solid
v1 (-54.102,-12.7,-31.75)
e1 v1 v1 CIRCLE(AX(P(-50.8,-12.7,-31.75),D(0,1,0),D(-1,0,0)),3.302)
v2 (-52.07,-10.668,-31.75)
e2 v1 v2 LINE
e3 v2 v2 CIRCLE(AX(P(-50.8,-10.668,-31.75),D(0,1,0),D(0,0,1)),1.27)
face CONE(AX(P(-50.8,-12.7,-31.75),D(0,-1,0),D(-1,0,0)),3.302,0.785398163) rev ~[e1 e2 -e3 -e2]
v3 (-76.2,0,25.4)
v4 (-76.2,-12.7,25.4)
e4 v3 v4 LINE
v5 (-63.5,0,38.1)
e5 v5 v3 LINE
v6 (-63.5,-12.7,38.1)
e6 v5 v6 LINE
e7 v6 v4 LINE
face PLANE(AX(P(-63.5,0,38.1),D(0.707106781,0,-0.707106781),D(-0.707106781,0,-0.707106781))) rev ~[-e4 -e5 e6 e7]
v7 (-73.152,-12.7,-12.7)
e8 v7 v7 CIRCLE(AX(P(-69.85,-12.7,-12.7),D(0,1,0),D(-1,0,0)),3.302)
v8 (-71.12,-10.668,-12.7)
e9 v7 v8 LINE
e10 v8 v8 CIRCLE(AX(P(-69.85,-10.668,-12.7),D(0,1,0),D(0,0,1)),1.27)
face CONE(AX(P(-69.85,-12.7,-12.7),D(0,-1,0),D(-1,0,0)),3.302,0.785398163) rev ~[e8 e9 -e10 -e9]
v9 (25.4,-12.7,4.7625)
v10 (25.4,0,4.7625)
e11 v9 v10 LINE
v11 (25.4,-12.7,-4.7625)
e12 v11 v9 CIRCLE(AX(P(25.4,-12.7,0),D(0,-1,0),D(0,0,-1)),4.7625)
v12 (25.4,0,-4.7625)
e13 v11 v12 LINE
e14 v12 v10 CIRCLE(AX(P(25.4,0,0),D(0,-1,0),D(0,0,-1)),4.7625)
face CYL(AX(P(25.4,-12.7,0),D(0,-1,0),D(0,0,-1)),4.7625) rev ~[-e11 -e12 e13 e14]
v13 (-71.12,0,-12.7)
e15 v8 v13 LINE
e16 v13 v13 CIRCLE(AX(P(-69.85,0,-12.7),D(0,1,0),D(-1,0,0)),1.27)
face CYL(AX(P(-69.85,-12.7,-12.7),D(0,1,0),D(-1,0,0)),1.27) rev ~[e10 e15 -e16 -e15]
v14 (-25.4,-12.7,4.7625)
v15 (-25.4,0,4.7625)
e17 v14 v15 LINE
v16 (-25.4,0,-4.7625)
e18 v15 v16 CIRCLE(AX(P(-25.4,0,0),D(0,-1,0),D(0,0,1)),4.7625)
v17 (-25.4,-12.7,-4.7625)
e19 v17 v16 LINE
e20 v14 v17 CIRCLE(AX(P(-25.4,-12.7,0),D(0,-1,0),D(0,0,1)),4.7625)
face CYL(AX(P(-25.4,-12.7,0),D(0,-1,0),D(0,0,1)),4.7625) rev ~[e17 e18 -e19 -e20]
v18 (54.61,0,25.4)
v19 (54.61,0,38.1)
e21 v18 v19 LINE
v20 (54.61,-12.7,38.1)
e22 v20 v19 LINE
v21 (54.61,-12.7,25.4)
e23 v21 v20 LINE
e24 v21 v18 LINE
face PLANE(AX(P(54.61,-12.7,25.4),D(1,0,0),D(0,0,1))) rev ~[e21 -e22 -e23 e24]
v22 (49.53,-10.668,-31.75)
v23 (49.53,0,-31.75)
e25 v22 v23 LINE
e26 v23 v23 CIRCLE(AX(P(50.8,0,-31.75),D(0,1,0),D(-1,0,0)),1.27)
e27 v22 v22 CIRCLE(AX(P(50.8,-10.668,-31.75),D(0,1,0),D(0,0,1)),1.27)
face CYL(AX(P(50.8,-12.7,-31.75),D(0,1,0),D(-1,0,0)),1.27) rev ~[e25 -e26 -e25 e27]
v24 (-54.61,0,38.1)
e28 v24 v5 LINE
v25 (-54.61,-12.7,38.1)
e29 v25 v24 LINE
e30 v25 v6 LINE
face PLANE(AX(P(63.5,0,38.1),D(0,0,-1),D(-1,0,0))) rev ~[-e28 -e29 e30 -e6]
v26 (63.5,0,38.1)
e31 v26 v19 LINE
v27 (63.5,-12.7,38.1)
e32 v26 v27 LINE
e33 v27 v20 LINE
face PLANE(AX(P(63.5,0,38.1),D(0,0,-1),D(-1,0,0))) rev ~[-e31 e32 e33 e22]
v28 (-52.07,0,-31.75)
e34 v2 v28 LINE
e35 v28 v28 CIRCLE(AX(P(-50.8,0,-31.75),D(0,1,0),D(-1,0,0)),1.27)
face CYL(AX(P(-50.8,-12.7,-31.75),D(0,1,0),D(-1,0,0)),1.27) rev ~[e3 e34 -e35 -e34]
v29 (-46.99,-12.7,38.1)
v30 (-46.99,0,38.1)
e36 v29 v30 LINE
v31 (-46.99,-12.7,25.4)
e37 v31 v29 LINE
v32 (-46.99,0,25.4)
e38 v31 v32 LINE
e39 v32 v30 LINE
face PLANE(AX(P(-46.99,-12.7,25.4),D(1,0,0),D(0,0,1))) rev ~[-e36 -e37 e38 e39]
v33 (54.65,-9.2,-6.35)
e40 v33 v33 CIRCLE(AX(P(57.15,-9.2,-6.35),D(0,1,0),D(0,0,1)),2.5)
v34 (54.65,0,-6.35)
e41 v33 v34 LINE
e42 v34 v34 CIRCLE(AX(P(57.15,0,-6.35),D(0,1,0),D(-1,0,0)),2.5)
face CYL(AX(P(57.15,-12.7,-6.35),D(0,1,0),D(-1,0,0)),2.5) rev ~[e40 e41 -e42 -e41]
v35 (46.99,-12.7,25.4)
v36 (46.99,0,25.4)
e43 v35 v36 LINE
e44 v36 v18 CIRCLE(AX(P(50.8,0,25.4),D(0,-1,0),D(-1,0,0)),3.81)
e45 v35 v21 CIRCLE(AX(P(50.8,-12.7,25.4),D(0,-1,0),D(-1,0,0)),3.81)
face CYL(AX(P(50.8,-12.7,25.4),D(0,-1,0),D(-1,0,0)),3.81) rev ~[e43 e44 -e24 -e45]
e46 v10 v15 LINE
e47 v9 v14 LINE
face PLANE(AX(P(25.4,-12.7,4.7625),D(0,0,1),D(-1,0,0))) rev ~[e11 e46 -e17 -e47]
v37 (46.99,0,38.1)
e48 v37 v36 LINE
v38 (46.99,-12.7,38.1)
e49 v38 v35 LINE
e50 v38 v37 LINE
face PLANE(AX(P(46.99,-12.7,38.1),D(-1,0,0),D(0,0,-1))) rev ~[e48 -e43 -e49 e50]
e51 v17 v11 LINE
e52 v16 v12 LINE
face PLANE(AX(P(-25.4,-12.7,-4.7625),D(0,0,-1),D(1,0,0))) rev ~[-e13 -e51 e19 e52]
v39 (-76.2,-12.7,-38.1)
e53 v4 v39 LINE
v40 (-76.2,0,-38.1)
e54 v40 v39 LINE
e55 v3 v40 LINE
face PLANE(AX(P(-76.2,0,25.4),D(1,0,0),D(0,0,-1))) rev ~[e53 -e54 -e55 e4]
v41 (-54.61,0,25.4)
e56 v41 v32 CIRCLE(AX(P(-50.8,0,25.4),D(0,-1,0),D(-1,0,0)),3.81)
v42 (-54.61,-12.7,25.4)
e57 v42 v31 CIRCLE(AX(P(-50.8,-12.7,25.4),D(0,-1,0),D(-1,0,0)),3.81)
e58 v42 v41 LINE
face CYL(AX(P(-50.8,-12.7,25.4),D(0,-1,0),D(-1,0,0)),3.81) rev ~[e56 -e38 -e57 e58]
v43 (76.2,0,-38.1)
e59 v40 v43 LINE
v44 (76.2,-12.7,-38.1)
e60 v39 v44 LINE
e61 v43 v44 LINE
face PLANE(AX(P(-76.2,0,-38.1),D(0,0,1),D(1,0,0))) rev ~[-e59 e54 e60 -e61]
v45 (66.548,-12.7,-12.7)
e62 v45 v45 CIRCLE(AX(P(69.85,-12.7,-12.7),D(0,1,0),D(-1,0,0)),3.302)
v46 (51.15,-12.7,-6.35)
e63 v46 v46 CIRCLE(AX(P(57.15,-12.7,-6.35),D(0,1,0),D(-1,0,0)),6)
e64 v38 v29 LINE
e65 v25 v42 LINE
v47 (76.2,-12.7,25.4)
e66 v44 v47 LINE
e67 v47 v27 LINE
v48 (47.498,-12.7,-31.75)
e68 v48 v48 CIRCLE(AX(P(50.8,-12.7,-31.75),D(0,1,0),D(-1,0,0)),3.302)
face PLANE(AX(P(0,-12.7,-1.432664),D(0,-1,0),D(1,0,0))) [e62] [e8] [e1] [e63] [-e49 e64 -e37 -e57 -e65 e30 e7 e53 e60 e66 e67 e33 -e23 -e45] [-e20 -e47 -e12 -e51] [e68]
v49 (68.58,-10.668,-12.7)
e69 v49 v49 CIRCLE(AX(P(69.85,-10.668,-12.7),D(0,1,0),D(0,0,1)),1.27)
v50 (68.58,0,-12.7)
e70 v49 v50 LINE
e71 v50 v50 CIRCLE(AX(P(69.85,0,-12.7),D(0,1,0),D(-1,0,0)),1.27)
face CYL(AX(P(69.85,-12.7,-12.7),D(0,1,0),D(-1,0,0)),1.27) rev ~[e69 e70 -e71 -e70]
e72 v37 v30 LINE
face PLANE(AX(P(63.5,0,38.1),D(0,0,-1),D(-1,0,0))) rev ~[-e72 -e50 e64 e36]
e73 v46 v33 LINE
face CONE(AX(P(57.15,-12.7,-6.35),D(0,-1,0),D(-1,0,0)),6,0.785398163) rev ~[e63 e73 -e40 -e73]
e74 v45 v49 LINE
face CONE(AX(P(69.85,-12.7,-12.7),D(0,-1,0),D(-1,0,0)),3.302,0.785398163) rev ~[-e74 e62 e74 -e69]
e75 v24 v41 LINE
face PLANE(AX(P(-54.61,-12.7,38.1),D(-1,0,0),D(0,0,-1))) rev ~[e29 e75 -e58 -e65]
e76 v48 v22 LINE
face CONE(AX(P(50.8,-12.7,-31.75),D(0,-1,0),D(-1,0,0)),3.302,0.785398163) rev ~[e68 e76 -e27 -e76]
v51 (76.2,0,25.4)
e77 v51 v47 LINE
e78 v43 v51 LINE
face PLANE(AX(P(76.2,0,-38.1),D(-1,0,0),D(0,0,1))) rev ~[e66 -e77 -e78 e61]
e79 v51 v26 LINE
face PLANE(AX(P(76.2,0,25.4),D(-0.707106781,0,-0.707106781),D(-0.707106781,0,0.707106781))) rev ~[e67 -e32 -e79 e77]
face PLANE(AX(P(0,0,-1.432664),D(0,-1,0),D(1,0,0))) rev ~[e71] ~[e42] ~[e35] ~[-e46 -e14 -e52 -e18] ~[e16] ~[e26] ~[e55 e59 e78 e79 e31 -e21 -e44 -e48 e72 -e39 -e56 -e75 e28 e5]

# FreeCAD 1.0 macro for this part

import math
import FreeCAD as App
import Part
import Sketcher
from FreeCAD import Vector
Q = App.Units.Quantity


def add_polygon(sketch, points):
    """Adds a closed chain of lines whose ends are joined by coincident constraints."""
    first, n = sketch.GeometryCount, len(points)
    for a, b in zip(points, points[1:] + points[:1]):
        sketch.addGeometry(Part.LineSegment(App.Vector(*a, 0), App.Vector(*b, 0)), False)
    for i in range(n):
        sketch.addConstraint(Sketcher.Constraint("Coincident", first + i, 2, first + (i + 1) % n, 1))

doc = App.newDocument("Part")
body = doc.addObject("PartDesign::Body", "Body")

# Sketch on XZ plane
sketch1 = doc.addObject("Sketcher::SketchObject", "Sketch")
body.addObject(sketch1)
sketch1.AttachmentSupport = (doc.XZ_Plane, [""])
sketch1.MapMode = "FlatFace"
add_polygon(sketch1, [(63.5, 38.1), (-63.5, 38.1), (-76.2, 25.4), (-76.2, -38.1), (76.2, -38.1), (76.2, 25.4)])  # lines 0-5
sketch1.addConstraint([
    Sketcher.Constraint("Horizontal", 0),
    Sketcher.Constraint("Vertical", 2),
    Sketcher.Constraint("Horizontal", 3),
    Sketcher.Constraint("Vertical", 4),
    Sketcher.Constraint("Symmetric", 1, 2, 4, 2, -2),
    Sketcher.Constraint("Perpendicular", 1, 5),
    Sketcher.Constraint("Equal", 1, 5),
    Sketcher.Constraint("DistanceX", 0, 2, 0, 1, Q("5 in")),
    Sketcher.Constraint("DistanceX", 3, 1, 3, 2, Q("6 in")),
    Sketcher.Constraint("DistanceY", 2, 2, 2, 1, Q("2.5 in")),
    Sketcher.Constraint("DistanceY", -1, 1, 1, 2, Q("1 in")),
])
pad1 = doc.addObject("PartDesign::Pad", "Pad")
body.addObject(pad1)
pad1.Profile = sketch1
pad1.Length = Q("0.5 in")

# Sketch on XZ plane
sketch2 = doc.addObject("Sketcher::SketchObject", "Sketch001")
body.addObject(sketch2)
sketch2.AttachmentSupport = (doc.XZ_Plane, [""])
sketch2.MapMode = "FlatFace"
sketch2.AttachmentOffset = App.Placement(Vector(0, 0, 0.5 * 25.4), App.Rotation())
sketch2.addGeometry([
    Part.LineSegment(Vector(-46.99, 38.1, 0), Vector(-54.61, 38.1, 0)),  # 0
    Part.LineSegment(Vector(-54.61, 38.1, 0), Vector(-54.61, 25.4, 0)),  # 1
    Part.ArcOfCircle(Part.Circle(Vector(-50.8, 25.4, 0), Vector(0, 0, 1), 3.81), math.radians(180), math.radians(360)),  # 2
    Part.LineSegment(Vector(-46.99, 25.4, 0), Vector(-46.99, 38.1, 0)),  # 3
    Part.LineSegment(Vector(25.4, 4.7625, 0), Vector(-25.4, 4.7625, 0)),  # 4
    Part.ArcOfCircle(Part.Circle(Vector(-25.4, 0, 0), Vector(0, 0, 1), 4.7625), math.radians(90), math.radians(270)),  # 5
    Part.LineSegment(Vector(-25.4, -4.7625, 0), Vector(25.4, -4.7625, 0)),  # 6
    Part.ArcOfCircle(Part.Circle(Vector(25.4, 0, 0), Vector(0, 0, 1), 4.7625), math.radians(-90), math.radians(90)),  # 7
    Part.LineSegment(Vector(54.61, 38.1, 0), Vector(46.99, 38.1, 0)),  # 8
    Part.LineSegment(Vector(46.99, 38.1, 0), Vector(46.99, 25.4, 0)),  # 9
    Part.ArcOfCircle(Part.Circle(Vector(50.8, 25.4, 0), Vector(0, 0, 1), 3.81), math.radians(180), math.radians(360)),  # 10
    Part.LineSegment(Vector(54.61, 25.4, 0), Vector(54.61, 38.1, 0)),  # 11
], False)
sketch2.addConstraint([
    Sketcher.Constraint("Coincident", 0, 2, 1, 1),
    Sketcher.Constraint("Tangent", 1, 2, 2, 1),
    Sketcher.Constraint("Tangent", 2, 2, 3, 1),
    Sketcher.Constraint("Coincident", 3, 2, 0, 1),
    Sketcher.Constraint("Tangent", 4, 2, 5, 1),
    Sketcher.Constraint("Tangent", 5, 2, 6, 1),
    Sketcher.Constraint("Tangent", 6, 2, 7, 1),
    Sketcher.Constraint("Tangent", 7, 2, 4, 1),
    Sketcher.Constraint("Coincident", 8, 2, 9, 1),
    Sketcher.Constraint("Tangent", 9, 2, 10, 1),
    Sketcher.Constraint("Tangent", 10, 2, 11, 1),
    Sketcher.Constraint("Coincident", 11, 2, 8, 1),
    Sketcher.Constraint("Horizontal", 0),
    Sketcher.Constraint("Vertical", 1),
    Sketcher.Constraint("Vertical", 3),
    Sketcher.Constraint("Horizontal", 4),
    Sketcher.Constraint("Horizontal", 6),
    Sketcher.Constraint("Horizontal", 8),
    Sketcher.Constraint("Vertical", 9),
    Sketcher.Constraint("Vertical", 11),
    Sketcher.Constraint("Equal", 2, 10),
    Sketcher.Constraint("Symmetric", 5, 3, 7, 3, -1, 1),
    Sketcher.Constraint("Symmetric", 2, 3, 10, 3, -2),
    Sketcher.Constraint("Horizontal", 3, 2, 8, 2),
    Sketcher.Constraint("DistanceX", 4, 2, 4, 1, Q("2 in")),
    Sketcher.Constraint("Radius", 2, Q("0.15 in")),
    Sketcher.Constraint("DistanceY", 1, 2, 1, 1, Q("0.5 in")),
    Sketcher.Constraint("DistanceX", 2, 3, -1, 1, Q("2 in")),
    Sketcher.Constraint("DistanceY", -1, 1, 2, 3, Q("1 in")),
    Sketcher.Constraint("Radius", 5, Q("0.1875 in")),
])
pocket1 = doc.addObject("PartDesign::Pocket", "Pocket")
body.addObject(pocket1)
pocket1.Profile = sketch2
pocket1.Type = "ThroughAll"

# Sketch on XZ plane
sketch3 = doc.addObject("Sketcher::SketchObject", "Sketch002")
body.addObject(sketch3)
sketch3.AttachmentSupport = (doc.XZ_Plane, [""])
sketch3.MapMode = "FlatFace"
sketch3.AttachmentOffset = App.Placement(Vector(0, 0, 0.5 * 25.4), App.Rotation())
sketch3.addGeometry([
    Part.Circle(Vector(-69.85, -12.7, 0), Vector(0, 0, 1), 1.27),
    Part.Circle(Vector(-50.8, -31.75, 0), Vector(0, 0, 1), 1.27),
    Part.Circle(Vector(50.8, -31.75, 0), Vector(0, 0, 1), 1.27),
    Part.Circle(Vector(69.85, -12.7, 0), Vector(0, 0, 1), 1.27),
], False)
sketch3.addConstraint([
    Sketcher.Constraint("Equal", 0, 1),
    Sketcher.Constraint("Equal", 1, 2),
    Sketcher.Constraint("Equal", 2, 3),
    Sketcher.Constraint("Symmetric", 1, 3, 2, 3, -2),
    Sketcher.Constraint("Symmetric", 0, 3, 3, 3, -2),
    Sketcher.Constraint("Diameter", 0, Q("0.1 in")),
    Sketcher.Constraint("DistanceX", 1, 3, -1, 1, Q("2 in")),
    Sketcher.Constraint("DistanceY", 0, 3, -1, 1, Q("0.5 in")),
    Sketcher.Constraint("DistanceX", 0, 3, 3, 3, Q("5.5 in")),
    Sketcher.Constraint("DistanceY", 1, 3, -1, 1, Q("1.25 in")),
])
doc.recompute()
hole = doc.addObject("PartDesign::Hole", "Hole")
body.addObject(hole)
hole.Profile = sketch3
hole.ThreadType = "None"
hole.Diameter = Q("0.1 in")
hole.DepthType = "ThroughAll"
hole.HoleCutType = "Countersink"
hole.HoleCutDiameter = Q("0.26 in")
hole.HoleCutCountersinkAngle = 90

# Sketch on XZ plane
sketch4 = doc.addObject("Sketcher::SketchObject", "Sketch003")
body.addObject(sketch4)
sketch4.AttachmentSupport = (doc.XZ_Plane, [""])
sketch4.MapMode = "FlatFace"
sketch4.AttachmentOffset = App.Placement(Vector(0, 0, 0.5 * 25.4), App.Rotation())
sketch4.addGeometry(Part.Circle(Vector(57.15, -6.35, 0), Vector(0, 0, 1), 2.5), False)
sketch4.addConstraint([
    Sketcher.Constraint("Diameter", 0, 5.0),
    Sketcher.Constraint("DistanceX", -1, 1, 0, 3, Q("2.25 in")),
    Sketcher.Constraint("DistanceY", 0, 3, -1, 1, Q("0.25 in")),
])
doc.recompute()
hole2 = doc.addObject("PartDesign::Hole", "Hole001")
body.addObject(hole2)
hole2.Profile = sketch4
hole2.ThreadType = "None"
hole2.Diameter = 5
hole2.DepthType = "ThroughAll"
hole2.HoleCutType = "Countersink"
hole2.HoleCutDiameter = 12
hole2.HoleCutCountersinkAngle = 90

doc.recompute()
